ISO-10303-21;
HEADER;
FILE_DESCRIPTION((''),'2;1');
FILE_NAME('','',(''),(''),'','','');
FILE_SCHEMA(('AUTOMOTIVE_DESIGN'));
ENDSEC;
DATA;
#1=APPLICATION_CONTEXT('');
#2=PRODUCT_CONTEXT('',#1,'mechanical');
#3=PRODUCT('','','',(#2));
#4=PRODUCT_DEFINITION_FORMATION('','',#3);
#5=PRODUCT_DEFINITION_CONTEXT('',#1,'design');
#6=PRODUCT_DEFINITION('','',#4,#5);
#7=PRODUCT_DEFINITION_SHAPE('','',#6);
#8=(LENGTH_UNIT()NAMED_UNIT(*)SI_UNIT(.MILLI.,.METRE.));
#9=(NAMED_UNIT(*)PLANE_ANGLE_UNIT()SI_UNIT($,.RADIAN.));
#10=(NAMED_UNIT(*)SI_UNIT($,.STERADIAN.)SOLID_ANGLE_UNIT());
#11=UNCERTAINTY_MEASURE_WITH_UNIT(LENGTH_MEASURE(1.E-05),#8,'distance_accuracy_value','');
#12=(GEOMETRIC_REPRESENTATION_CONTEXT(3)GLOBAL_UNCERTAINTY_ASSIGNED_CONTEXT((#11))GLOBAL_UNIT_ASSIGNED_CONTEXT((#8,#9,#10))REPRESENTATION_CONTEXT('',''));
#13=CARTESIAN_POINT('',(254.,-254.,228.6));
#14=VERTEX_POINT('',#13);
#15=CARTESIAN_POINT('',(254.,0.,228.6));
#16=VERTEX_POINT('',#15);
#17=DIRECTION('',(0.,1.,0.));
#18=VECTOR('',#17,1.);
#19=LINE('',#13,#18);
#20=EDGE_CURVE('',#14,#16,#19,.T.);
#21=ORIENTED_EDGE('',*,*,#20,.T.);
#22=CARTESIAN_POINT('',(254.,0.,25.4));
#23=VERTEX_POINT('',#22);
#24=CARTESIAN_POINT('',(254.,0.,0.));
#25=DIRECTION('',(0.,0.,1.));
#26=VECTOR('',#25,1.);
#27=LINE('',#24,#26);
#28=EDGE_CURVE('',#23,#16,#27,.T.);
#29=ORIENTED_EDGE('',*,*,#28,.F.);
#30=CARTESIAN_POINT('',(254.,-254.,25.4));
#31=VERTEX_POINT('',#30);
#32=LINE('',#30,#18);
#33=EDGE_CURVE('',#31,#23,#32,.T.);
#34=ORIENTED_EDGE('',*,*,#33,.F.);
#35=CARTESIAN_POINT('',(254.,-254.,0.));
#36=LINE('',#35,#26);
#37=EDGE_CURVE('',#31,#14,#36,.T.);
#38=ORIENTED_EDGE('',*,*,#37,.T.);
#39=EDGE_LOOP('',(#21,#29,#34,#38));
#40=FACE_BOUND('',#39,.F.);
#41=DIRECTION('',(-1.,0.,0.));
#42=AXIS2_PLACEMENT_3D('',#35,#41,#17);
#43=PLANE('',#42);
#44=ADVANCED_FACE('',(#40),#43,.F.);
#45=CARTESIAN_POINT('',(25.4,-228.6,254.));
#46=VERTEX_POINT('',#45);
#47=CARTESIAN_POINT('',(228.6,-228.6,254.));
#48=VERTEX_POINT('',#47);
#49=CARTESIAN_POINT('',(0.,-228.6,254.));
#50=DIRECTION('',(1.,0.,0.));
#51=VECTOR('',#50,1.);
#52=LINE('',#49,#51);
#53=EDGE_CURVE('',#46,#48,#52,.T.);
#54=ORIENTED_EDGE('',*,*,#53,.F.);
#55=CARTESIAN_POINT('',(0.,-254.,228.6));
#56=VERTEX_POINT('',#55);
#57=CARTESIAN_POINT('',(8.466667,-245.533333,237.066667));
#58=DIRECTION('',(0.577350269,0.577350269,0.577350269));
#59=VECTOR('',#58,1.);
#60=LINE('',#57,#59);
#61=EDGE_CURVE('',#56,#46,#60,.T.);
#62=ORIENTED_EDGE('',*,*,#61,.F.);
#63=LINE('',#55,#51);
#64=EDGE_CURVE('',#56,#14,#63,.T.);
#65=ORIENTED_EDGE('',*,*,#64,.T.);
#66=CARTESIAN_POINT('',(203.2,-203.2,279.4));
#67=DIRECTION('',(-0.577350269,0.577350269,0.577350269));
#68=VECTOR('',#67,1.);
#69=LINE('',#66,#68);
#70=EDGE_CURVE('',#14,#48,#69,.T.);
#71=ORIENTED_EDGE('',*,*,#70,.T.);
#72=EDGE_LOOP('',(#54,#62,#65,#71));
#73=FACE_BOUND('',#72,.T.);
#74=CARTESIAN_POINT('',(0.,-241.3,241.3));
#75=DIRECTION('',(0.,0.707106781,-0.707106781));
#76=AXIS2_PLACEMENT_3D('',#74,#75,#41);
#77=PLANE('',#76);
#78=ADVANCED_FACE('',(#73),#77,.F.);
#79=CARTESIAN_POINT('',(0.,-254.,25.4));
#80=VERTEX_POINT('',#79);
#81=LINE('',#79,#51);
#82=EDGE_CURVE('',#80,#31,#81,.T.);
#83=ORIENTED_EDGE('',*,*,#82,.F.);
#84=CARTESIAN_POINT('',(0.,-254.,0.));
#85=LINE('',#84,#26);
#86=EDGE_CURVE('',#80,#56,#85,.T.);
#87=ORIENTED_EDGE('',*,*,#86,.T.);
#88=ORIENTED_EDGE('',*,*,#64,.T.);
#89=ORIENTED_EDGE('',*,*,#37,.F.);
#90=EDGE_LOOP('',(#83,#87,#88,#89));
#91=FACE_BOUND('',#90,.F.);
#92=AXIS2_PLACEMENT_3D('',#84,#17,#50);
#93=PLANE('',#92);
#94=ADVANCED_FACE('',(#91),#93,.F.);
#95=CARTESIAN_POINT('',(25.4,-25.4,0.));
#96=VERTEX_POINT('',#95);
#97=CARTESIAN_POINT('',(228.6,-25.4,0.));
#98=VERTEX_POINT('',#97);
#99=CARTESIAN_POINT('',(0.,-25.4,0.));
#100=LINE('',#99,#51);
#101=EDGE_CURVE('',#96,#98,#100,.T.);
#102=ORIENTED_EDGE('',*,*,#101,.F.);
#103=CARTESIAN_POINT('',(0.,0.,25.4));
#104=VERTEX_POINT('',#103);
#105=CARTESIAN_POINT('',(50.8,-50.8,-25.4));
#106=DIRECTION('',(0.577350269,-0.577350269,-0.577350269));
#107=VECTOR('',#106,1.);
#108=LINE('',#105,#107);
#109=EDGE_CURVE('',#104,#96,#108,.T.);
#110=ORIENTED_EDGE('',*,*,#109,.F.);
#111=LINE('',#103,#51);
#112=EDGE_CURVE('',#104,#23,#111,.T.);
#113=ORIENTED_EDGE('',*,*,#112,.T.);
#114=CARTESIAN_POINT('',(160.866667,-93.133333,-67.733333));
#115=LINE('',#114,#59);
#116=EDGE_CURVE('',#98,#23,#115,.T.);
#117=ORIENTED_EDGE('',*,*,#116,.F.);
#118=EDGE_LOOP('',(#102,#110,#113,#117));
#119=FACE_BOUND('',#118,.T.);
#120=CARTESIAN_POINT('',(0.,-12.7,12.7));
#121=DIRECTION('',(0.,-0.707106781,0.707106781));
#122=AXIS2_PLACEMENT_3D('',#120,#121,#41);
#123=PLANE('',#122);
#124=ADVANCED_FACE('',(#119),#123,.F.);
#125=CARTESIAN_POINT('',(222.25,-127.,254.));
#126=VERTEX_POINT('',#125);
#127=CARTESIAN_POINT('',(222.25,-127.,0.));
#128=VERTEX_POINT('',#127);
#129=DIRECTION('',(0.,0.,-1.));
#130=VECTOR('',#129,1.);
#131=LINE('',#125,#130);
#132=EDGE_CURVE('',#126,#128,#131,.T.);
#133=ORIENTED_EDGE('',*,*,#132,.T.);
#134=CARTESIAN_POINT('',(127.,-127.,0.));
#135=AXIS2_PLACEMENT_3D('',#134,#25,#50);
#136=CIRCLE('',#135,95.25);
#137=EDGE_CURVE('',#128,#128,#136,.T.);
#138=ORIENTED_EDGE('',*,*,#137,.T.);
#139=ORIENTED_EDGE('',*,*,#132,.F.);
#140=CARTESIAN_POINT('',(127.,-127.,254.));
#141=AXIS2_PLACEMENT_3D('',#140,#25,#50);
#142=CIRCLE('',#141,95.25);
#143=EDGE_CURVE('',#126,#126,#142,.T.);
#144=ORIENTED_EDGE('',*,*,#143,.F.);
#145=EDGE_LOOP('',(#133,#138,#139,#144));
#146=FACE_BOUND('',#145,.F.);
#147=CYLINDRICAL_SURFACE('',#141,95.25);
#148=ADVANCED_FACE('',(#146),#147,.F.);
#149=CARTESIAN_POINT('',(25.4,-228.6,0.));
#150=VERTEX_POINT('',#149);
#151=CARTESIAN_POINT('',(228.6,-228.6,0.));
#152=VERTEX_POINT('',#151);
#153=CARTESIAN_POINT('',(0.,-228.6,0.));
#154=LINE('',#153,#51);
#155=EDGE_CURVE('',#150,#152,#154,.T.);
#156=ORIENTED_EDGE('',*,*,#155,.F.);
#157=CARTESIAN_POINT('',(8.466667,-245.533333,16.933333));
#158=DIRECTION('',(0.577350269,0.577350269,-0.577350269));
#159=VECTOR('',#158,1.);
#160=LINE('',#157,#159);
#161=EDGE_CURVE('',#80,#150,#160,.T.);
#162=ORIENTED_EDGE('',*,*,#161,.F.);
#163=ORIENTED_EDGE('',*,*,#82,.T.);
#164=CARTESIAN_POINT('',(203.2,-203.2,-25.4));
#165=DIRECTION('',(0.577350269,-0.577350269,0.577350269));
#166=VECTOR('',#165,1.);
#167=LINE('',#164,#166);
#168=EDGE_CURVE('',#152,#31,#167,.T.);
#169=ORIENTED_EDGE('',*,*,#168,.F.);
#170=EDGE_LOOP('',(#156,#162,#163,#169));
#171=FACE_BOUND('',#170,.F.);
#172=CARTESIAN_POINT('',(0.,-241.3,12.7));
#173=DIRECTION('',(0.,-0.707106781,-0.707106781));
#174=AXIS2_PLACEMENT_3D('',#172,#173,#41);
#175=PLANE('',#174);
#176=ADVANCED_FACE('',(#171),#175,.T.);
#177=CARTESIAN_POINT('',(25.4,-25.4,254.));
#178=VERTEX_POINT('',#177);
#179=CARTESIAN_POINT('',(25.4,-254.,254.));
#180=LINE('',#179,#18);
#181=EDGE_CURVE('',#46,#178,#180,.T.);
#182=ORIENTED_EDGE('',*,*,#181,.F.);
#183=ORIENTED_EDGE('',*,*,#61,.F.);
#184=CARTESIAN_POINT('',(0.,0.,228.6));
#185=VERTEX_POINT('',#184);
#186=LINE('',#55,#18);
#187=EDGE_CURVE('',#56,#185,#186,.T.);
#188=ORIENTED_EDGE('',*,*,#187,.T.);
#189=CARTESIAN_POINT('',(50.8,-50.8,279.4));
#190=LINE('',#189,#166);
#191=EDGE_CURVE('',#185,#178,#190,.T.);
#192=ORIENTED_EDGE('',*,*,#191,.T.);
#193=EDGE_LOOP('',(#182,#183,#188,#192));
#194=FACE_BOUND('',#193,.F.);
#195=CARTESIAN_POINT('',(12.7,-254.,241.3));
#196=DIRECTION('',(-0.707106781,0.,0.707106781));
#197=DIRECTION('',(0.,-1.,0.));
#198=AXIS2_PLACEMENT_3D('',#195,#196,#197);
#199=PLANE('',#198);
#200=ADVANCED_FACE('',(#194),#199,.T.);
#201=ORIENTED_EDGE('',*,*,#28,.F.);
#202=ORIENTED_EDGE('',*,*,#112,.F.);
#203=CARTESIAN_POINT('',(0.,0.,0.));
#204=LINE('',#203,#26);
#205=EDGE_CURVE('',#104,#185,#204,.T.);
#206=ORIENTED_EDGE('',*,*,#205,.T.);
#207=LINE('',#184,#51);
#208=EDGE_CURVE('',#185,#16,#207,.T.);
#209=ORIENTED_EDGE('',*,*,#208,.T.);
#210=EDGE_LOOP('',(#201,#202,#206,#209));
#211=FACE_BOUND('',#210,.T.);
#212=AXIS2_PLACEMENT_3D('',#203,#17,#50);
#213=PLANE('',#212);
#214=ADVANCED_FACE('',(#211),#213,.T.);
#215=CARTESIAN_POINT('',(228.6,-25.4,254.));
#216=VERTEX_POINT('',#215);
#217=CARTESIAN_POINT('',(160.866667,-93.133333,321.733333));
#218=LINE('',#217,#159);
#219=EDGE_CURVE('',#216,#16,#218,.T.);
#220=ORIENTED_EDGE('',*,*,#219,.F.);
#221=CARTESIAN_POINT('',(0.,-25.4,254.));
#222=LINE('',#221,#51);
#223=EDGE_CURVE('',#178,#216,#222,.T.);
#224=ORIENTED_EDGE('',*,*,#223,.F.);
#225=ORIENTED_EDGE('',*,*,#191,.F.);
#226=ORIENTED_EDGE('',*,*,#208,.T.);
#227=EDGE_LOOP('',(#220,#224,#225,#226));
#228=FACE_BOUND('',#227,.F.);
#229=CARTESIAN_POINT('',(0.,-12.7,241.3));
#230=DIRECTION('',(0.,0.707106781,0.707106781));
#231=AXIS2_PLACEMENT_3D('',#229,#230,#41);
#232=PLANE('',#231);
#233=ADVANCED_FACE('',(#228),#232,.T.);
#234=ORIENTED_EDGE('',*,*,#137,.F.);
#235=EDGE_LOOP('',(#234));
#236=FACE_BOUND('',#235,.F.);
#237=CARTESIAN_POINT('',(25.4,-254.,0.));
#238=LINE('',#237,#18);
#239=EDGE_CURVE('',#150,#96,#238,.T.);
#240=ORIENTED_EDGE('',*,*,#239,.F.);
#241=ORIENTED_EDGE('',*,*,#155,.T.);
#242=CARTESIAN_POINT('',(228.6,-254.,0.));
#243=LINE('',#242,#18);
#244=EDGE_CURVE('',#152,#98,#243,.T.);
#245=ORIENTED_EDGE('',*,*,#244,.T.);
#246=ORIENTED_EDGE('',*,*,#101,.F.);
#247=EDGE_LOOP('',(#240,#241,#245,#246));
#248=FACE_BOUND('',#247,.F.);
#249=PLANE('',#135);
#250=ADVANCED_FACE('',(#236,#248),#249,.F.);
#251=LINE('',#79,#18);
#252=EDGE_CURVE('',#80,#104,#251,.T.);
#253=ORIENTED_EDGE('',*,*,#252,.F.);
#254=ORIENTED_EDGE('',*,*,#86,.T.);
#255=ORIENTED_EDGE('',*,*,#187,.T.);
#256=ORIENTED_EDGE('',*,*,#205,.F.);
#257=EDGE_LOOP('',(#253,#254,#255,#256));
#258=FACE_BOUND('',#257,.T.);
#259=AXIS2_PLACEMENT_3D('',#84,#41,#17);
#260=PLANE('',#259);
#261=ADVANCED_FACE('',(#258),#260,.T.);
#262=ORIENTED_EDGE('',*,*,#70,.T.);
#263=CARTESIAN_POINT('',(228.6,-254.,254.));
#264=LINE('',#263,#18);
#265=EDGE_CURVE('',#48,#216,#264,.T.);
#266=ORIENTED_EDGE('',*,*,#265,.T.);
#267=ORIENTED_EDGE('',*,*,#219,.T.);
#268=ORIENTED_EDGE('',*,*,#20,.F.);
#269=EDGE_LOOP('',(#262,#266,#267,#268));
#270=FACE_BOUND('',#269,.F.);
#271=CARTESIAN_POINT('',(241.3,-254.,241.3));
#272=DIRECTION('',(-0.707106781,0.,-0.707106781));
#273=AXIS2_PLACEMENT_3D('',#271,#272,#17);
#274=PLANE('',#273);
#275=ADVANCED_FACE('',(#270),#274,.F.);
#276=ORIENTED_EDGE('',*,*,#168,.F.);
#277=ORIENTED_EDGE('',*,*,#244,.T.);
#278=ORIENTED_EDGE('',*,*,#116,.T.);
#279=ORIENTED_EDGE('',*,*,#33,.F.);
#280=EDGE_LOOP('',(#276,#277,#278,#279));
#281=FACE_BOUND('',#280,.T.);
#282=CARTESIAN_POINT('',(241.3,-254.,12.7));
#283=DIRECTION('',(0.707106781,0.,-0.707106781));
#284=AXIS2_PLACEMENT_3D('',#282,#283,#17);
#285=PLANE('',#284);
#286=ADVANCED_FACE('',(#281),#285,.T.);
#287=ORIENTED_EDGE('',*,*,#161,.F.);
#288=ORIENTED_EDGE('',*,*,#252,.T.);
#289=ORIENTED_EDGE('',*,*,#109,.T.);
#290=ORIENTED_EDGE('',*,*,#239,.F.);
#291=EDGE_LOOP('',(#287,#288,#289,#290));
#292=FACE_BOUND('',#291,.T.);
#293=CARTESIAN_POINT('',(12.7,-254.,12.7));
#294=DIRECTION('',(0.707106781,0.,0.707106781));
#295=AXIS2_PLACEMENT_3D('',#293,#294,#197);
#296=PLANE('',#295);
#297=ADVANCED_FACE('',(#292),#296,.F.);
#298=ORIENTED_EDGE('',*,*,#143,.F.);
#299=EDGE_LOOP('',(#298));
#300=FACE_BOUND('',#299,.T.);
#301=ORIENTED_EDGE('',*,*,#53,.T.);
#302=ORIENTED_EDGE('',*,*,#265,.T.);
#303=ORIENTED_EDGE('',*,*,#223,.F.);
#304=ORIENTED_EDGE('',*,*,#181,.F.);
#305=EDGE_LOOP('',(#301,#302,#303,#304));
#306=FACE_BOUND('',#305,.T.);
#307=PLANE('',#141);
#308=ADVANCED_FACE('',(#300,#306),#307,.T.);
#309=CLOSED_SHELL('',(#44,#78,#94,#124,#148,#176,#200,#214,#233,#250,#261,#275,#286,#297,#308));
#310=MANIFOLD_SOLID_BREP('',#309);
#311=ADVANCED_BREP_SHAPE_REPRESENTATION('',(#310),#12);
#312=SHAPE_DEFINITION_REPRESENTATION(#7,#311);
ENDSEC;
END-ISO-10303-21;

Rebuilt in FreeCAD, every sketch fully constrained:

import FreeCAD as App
import Part
import Sketcher

V = App.Vector
Q = App.Units.Quantity


def edges_at(feature, points):
    """Names of the edges that pass closest to the given points."""
    edges = feature.Shape.Edges
    near = lambda p: min(range(len(edges)), key=lambda i: edges[i].distToShape(Part.Vertex(*p))[0])
    return sorted({f"Edge{near(p) + 1}" for p in points})


def add_polygon(sketch, points):
    """Adds a closed chain of lines whose ends are joined by coincident constraints."""
    first, n = sketch.GeometryCount, len(points)
    for a, b in zip(points, points[1:] + points[:1]):
        sketch.addGeometry(Part.LineSegment(App.Vector(*a, 0), App.Vector(*b, 0)), False)
    for i in range(n):
        sketch.addConstraint(Sketcher.Constraint("Coincident", first + i, 2, first + (i + 1) % n, 1))

doc = App.newDocument("Part")
body = doc.addObject("PartDesign::Body", "Body")

# Sketch on XY plane
sketch1 = body.newObject("Sketcher::SketchObject", "Sketch")
sketch1.AttachmentSupport = (doc.getObject("XY_Plane"), [""])
sketch1.MapMode = "FlatFace"
add_polygon(sketch1, [(0, 0), (0, -254), (254, -254), (254, 0)])  # lines 0-3
sketch1.addConstraint([
    Sketcher.Constraint("Vertical", 0),
    Sketcher.Constraint("Horizontal", 1),
    Sketcher.Constraint("Vertical", 2),
    Sketcher.Constraint("Horizontal", 3),
    Sketcher.Constraint("Coincident", 3, 2, -1, 1),
    Sketcher.Constraint("Equal", 3, 0),
    Sketcher.Constraint("DistanceX", 1, 1, 1, 2, Q("10 in")),
])
pad1 = body.newObject("PartDesign::Pad", "Pad")
pad1.Profile = sketch1
pad1.Length = Q("10 in")

# Sketch on XY plane
sketch2 = body.newObject("Sketcher::SketchObject", "Sketch001")
sketch2.AttachmentSupport = (doc.getObject("XY_Plane"), [""])
sketch2.MapMode = "FlatFace"
sketch2.AttachmentOffset = App.Placement(V(0, 0, 10 * 25.4), App.Rotation())
sketch2.addGeometry(Part.Circle(V(127, -127, 0), V(0, 0, 1), 95.25), False)
sketch2.addConstraint([
    Sketcher.Constraint("Diameter", 0, Q("7.5 in")),
    Sketcher.Constraint("DistanceX", -1, 1, 0, 3, Q("5 in")),
    Sketcher.Constraint("DistanceY", 0, 3, -1, 1, Q("5 in")),
])
pocket1 = body.newObject("PartDesign::Pocket", "Pocket")
pocket1.Profile = sketch2
pocket1.Type = "ThroughAll"
doc.recompute()

chamfer = body.newObject("PartDesign::Chamfer", "Chamfer")
chamfer.Base = (pocket1, edges_at(pocket1, [
    (127, -254, 254),
    (254, -127, 254),
    (127, 0, 254),
    (0, -127, 254),
    (254, -127, 0),
    (127, -254, 0),
    (127, 0, 0),
    (0, -127, 0),
]))
chamfer.Size = Q("1 in")

doc.recompute()
